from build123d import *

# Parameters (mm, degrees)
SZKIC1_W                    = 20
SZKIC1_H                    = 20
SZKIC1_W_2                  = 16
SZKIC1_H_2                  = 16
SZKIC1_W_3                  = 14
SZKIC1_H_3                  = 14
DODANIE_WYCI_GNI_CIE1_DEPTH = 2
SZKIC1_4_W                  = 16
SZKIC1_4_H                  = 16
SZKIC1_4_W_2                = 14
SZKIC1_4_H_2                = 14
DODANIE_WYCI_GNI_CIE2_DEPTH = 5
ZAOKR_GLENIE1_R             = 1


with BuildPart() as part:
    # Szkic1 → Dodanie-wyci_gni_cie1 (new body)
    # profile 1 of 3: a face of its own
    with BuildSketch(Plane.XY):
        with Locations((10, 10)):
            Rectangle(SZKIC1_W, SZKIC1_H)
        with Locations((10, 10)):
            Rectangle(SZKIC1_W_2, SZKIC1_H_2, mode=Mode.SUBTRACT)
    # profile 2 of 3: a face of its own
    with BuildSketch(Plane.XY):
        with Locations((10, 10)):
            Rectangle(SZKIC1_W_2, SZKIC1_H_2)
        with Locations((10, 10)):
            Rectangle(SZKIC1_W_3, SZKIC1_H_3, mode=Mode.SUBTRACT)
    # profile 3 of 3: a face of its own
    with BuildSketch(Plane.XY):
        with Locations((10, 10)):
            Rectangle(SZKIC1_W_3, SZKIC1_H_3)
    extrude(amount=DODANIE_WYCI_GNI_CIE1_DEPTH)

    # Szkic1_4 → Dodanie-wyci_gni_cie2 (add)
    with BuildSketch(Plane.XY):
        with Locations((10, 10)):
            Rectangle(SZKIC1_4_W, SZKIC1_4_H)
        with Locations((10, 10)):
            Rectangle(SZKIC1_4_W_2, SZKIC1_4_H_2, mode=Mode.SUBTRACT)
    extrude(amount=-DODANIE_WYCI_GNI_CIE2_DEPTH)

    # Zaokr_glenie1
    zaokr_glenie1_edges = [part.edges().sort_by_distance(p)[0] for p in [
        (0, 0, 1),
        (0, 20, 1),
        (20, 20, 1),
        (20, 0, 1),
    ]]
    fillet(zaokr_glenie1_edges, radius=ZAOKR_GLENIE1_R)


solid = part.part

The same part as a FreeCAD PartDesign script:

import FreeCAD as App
import Part
import Sketcher
from FreeCAD import Vector
Q = App.Units.Quantity


def edges_at(feature, points):
    """Names of the edges that pass closest to the given points."""
    edges = feature.Shape.Edges
    near = lambda p: min(range(len(edges)), key=lambda i: edges[i].distToShape(Part.Vertex(*p))[0])
    return sorted({f"Edge{near(p) + 1}" for p in points})


def add_polygon(sketch, points):
    """Adds a closed chain of lines whose ends are joined by coincident constraints."""
    first, n = sketch.GeometryCount, len(points)
    for a, b in zip(points, points[1:] + points[:1]):
        sketch.addGeometry(Part.LineSegment(App.Vector(*a, 0), App.Vector(*b, 0)), False)
    for i in range(n):
        sketch.addConstraint(Sketcher.Constraint("Coincident", first + i, 2, first + (i + 1) % n, 1))

doc = App.newDocument("Part")
body = doc.addObject("PartDesign::Body", "Body")

# Sketch on XY plane
sketch1 = body.newObject("Sketcher::SketchObject", "Sketch")
sketch1.AttachmentSupport = (doc.getObject("XY_Plane"), [""])
sketch1.MapMode = "FlatFace"
add_polygon(sketch1, [(0, 20), (0, 0), (20, 0), (20, 20)])  # lines 0-3
sketch1.addConstraint(Sketcher.Constraint("Vertical", 0))
sketch1.addConstraint(Sketcher.Constraint("Horizontal", 1))
sketch1.addConstraint(Sketcher.Constraint("Vertical", 2))
sketch1.addConstraint(Sketcher.Constraint("Horizontal", 3))
sketch1.addConstraint(Sketcher.Constraint("Coincident", 0, 2, -1, 1))
sketch1.addConstraint(Sketcher.Constraint("Equal", 3, 0))
sketch1.addConstraint(Sketcher.Constraint("DistanceX", 1, 1, 1, 2, Q("20 mm")))
pad1 = body.newObject("PartDesign::Pad", "Pad")
pad1.Profile = sketch1
pad1.Length = 2

# Sketch on XY plane
sketch2 = body.newObject("Sketcher::SketchObject", "Sketch001")
sketch2.AttachmentSupport = (doc.getObject("XY_Plane"), [""])
sketch2.MapMode = "FlatFace"
add_polygon(sketch2, [(2, 18), (2, 2), (18, 2), (18, 18)])  # lines 0-3
add_polygon(sketch2, [(17, 3), (3, 3), (3, 17), (17, 17)])  # lines 4-7
sketch2.addConstraint(Sketcher.Constraint("Vertical", 0))
sketch2.addConstraint(Sketcher.Constraint("Horizontal", 1))
sketch2.addConstraint(Sketcher.Constraint("Vertical", 2))
sketch2.addConstraint(Sketcher.Constraint("Horizontal", 3))
sketch2.addConstraint(Sketcher.Constraint("Horizontal", 4))
sketch2.addConstraint(Sketcher.Constraint("Vertical", 5))
sketch2.addConstraint(Sketcher.Constraint("Horizontal", 6))
sketch2.addConstraint(Sketcher.Constraint("Vertical", 7))
sketch2.addConstraint(Sketcher.Constraint("Equal", 3, 0))
sketch2.addConstraint(Sketcher.Constraint("Equal", 6, 5))
sketch2.addConstraint(Sketcher.Constraint("DistanceX", 1, 1, 1, 2, Q("16 mm")))
sketch2.addConstraint(Sketcher.Constraint("DistanceX", 4, 2, 4, 1, Q("14 mm")))
sketch2.addConstraint(Sketcher.Constraint("DistanceX", -1, 1, 0, 2, Q("2 mm")))
sketch2.addConstraint(Sketcher.Constraint("DistanceY", -1, 1, 0, 2, Q("2 mm")))
sketch2.addConstraint(Sketcher.Constraint("DistanceX", -1, 1, 4, 2, Q("3 mm")))
sketch2.addConstraint(Sketcher.Constraint("DistanceY", -1, 1, 4, 2, Q("3 mm")))
pad2 = body.newObject("PartDesign::Pad", "Pad001")
pad2.Profile = sketch2
pad2.Length = 5
pad2.Reversed = True
doc.recompute()

fillet = body.newObject("PartDesign::Fillet", "Fillet")
fillet.Base = (pad2, edges_at(pad2, [
    (0, 0, 1),
    (0, 20, 1),
    (20, 20, 1),
    (20, 0, 1),
]))
fillet.Radius = 1

doc.recompute()
